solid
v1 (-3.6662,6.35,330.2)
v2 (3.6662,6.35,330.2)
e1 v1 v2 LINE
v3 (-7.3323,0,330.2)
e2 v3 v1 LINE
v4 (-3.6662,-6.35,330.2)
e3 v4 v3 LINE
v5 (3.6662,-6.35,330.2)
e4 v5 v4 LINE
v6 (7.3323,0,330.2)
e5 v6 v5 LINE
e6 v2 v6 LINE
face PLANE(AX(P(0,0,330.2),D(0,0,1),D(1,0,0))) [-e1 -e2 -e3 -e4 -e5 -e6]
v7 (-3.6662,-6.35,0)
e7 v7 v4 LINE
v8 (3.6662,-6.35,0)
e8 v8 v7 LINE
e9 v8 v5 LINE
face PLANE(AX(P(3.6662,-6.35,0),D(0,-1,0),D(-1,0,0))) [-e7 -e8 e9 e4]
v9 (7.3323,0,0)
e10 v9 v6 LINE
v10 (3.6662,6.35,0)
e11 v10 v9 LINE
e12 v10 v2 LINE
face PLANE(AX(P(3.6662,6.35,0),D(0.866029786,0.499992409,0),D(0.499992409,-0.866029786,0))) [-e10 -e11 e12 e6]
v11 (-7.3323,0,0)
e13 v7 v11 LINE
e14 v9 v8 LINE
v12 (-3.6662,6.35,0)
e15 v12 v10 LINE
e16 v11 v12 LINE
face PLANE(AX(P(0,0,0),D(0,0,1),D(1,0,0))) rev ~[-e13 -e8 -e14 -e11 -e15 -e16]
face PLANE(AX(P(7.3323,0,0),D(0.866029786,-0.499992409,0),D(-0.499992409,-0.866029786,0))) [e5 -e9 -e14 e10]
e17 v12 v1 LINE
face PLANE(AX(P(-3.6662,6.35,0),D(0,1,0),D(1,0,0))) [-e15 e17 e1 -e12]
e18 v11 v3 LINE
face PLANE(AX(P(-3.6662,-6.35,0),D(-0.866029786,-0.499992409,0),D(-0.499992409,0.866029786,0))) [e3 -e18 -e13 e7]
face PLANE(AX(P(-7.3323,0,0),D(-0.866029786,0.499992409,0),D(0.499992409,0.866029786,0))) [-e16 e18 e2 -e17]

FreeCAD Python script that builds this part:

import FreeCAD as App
import Part
import Sketcher
Q = App.Units.Quantity


def add_polygon(sketch, points):
    """Adds a closed chain of lines whose ends are joined by coincident constraints."""
    first, n = sketch.GeometryCount, len(points)
    for a, b in zip(points, points[1:] + points[:1]):
        sketch.addGeometry(Part.LineSegment(App.Vector(*a, 0), App.Vector(*b, 0)), False)
    for i in range(n):
        sketch.addConstraint(Sketcher.Constraint("Coincident", first + i, 2, first + (i + 1) % n, 1))

doc = App.newDocument("Part")
params = doc.addObject("Spreadsheet::Sheet", "Params")
for row, (alias, value) in enumerate([
    ("pad1_length", "13 in"),
], start=1):
    params.set(f"A{row}", alias)
    params.set(f"B{row}", "=" + value)
    params.setAlias(f"B{row}", alias)

body = doc.addObject("PartDesign::Body", "Body")

# Sketch on XY plane
sketch1 = doc.addObject("Sketcher::SketchObject", "Sketch")
body.addObject(sketch1)
sketch1.AttachmentSupport = (doc.XY_Plane, [""])
sketch1.MapMode = "FlatFace"
add_polygon(sketch1, [(7.3323, 0), (3.6662, 6.35), (-3.6662, 6.35), (-7.3323, 0), (-3.6662, -6.35), (3.6662, -6.35)])  # lines 0-5
sketch1.addConstraint(Sketcher.Constraint("Horizontal", 1))
sketch1.addConstraint(Sketcher.Constraint("Horizontal", 4))
sketch1.addConstraint(Sketcher.Constraint("Symmetric", 0, 2, 3, 2, -1, 1))
sketch1.addConstraint(Sketcher.Constraint("Symmetric", 2, 2, 5, 2, -1, 1))
sketch1.addConstraint(Sketcher.Constraint("PointOnObject", 2, 2, -1))
sketch1.addConstraint(Sketcher.Constraint("Parallel", 2, 5))
sketch1.addConstraint(Sketcher.Constraint("Vertical", 1, 2, 3, 2))
sketch1.addConstraint(Sketcher.Constraint("DistanceY", 3, 2, 1, 2, Q("0.5 in")))
sketch1.addConstraint(Sketcher.Constraint("Angle", 0, Q("119.9995 deg")))
sketch1.addConstraint(Sketcher.Constraint("DistanceX", 2, 2, 0, 2, Q("0.433 in")))
pad1 = doc.addObject("PartDesign::Pad", "Pad")
body.addObject(pad1)
pad1.Profile = sketch1
pad1.setExpression("Length", "Params.pad1_length")

doc.recompute()
